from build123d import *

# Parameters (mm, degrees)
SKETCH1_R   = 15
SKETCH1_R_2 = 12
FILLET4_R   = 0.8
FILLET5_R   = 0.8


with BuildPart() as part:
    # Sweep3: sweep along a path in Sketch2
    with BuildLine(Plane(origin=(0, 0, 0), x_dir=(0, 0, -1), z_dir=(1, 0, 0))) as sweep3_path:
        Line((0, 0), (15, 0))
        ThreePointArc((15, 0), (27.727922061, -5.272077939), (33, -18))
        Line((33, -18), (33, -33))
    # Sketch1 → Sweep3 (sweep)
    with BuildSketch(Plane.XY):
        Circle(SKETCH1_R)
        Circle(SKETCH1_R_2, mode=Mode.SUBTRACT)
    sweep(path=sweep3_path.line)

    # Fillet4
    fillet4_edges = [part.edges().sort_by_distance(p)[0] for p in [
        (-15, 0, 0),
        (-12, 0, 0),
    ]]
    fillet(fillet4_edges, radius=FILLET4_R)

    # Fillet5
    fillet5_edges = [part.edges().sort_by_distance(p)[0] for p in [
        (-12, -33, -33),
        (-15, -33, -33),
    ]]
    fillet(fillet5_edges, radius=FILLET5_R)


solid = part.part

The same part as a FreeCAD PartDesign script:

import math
import FreeCAD as App
import Part
import Sketcher
from FreeCAD import Vector


def edges_at(feature, points):
    """Names of the edges that pass closest to the given points."""
    edges = feature.Shape.Edges
    near = lambda p: min(range(len(edges)), key=lambda i: edges[i].distToShape(Part.Vertex(*p))[0])
    return sorted({f"Edge{near(p) + 1}" for p in points})

doc = App.newDocument("Part")
body = doc.addObject("PartDesign::Body", "Body")

# Sketch on XY plane
sketch1 = doc.addObject("Sketcher::SketchObject", "Sketch")
body.addObject(sketch1)
sketch1.AttachmentSupport = (doc.XY_Plane, [""])
sketch1.MapMode = "FlatFace"
sketch1.addGeometry([
    Part.Circle(Vector(0, 0, 0), Vector(0, 0, 1), 15),
    Part.Circle(Vector(0, 0, 0), Vector(0, 0, 1), 12),
], False)
sketch1.addConstraint([
    Sketcher.Constraint("Coincident", 0, 3, -1, 1),
    Sketcher.Constraint("Coincident", 1, 3, -1, 1),
    Sketcher.Constraint("Diameter", 0, 30.0),
    Sketcher.Constraint("Diameter", 1, 24.0),
])

# Sketch on YZ plane
sketch2 = doc.addObject("Sketcher::SketchObject", "Sketch001")
body.addObject(sketch2)
sketch2.AttachmentSupport = (doc.YZ_Plane, [""])
sketch2.MapMode = "FlatFace"
sketch2.addGeometry([
    Part.LineSegment(Vector(0, 0, 0), Vector(0, -15, 0)),
    Part.ArcOfCircle(Part.Circle(Vector(-18, -15, 0), Vector(0, 0, 1), 18), math.radians(-90), math.radians(0)),
    Part.LineSegment(Vector(-18, -33, 0), Vector(-33, -33, 0)),
], False)
sketch2.addConstraint([
    Sketcher.Constraint("Tangent", 0, 2, 1, 2),
    Sketcher.Constraint("Tangent", 1, 1, 2, 1),
    Sketcher.Constraint("Vertical", 0),
    Sketcher.Constraint("Horizontal", 2),
    Sketcher.Constraint("Coincident", 0, 1, -1, 1),
    Sketcher.Constraint("Equal", 2, 0),
    Sketcher.Constraint("Radius", 1, 18.0),
    Sketcher.Constraint("DistanceX", 2, 2, 2, 1, 15.0),
])
doc.recompute()

additivepipe = doc.addObject("PartDesign::AdditivePipe", "AdditivePipe")
body.addObject(additivepipe)
additivepipe.Profile = sketch1
additivepipe.Spine = (sketch2, ["Edge1", "Edge2", "Edge3"])
doc.recompute()

fillet = doc.addObject("PartDesign::Fillet", "Fillet")
body.addObject(fillet)
fillet.Base = (additivepipe, edges_at(additivepipe, [(-15, 0, 0), (-12, 0, 0)]))
fillet.Radius = 0.8
doc.recompute()

fillet2 = doc.addObject("PartDesign::Fillet", "Fillet001")
body.addObject(fillet2)
fillet2.Base = (fillet, edges_at(fillet, [(-12, -33, -33), (-15, -33, -33)]))
fillet2.Radius = 0.8

doc.recompute()
